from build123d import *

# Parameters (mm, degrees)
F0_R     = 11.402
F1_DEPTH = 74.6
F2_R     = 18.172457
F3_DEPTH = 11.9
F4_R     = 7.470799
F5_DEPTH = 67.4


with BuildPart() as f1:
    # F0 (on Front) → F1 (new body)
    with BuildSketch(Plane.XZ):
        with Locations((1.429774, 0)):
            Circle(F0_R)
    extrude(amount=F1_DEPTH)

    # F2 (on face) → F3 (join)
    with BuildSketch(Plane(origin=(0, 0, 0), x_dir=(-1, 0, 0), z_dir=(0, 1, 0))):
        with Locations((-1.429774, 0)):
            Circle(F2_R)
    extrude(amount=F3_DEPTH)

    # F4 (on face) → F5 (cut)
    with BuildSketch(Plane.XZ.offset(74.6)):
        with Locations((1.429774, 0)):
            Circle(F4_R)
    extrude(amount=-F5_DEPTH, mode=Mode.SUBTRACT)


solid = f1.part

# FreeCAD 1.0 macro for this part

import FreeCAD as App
import Part
import Sketcher

V = App.Vector

doc = App.newDocument("Part")
body = doc.addObject("PartDesign::Body", "Body")

# Sketch on XZ plane
sketch1 = doc.addObject("Sketcher::SketchObject", "Sketch")
body.addObject(sketch1)
sketch1.AttachmentSupport = (doc.XZ_Plane, [""])
sketch1.MapMode = "FlatFace"
sketch1.addGeometry(Part.Circle(V(1.429774, 0, 0), V(0, 0, 1), 11.402), False)
sketch1.addConstraint([
    Sketcher.Constraint("PointOnObject", 0, 3, -1),
    Sketcher.Constraint("Diameter", 0, 22.804),
    Sketcher.Constraint("DistanceX", -1, 1, 0, 3, 1.429774),
])
pad1 = doc.addObject("PartDesign::Pad", "Pad")
body.addObject(pad1)
pad1.Profile = sketch1
pad1.Length = 74.6

# Sketch on XZ plane
sketch2 = doc.addObject("Sketcher::SketchObject", "Sketch001")
body.addObject(sketch2)
sketch2.AttachmentSupport = (doc.XZ_Plane, [""])
sketch2.MapMode = "FlatFace"
sketch2.addGeometry(Part.Circle(V(1.429774, 0, 0), V(0, 0, 1), 18.172457), False)
sketch2.addConstraint([
    Sketcher.Constraint("PointOnObject", 0, 3, -1),
    Sketcher.Constraint("Diameter", 0, 36.344914),
    Sketcher.Constraint("DistanceX", -1, 1, 0, 3, 1.429774),
])
pad2 = doc.addObject("PartDesign::Pad", "Pad001")
body.addObject(pad2)
pad2.Profile = sketch2
pad2.Length = 11.9
pad2.Reversed = True

# Sketch on XZ plane
sketch3 = doc.addObject("Sketcher::SketchObject", "Sketch002")
body.addObject(sketch3)
sketch3.AttachmentSupport = (doc.XZ_Plane, [""])
sketch3.MapMode = "FlatFace"
sketch3.AttachmentOffset = App.Placement(V(0, 0, 74.6), App.Rotation())
sketch3.addGeometry(Part.Circle(V(1.429774, 0, 0), V(0, 0, 1), 7.470799), False)
sketch3.addConstraint([
    Sketcher.Constraint("PointOnObject", 0, 3, -1),
    Sketcher.Constraint("Diameter", 0, 14.941598),
    Sketcher.Constraint("DistanceX", -1, 1, 0, 3, 1.429774),
])
pocket1 = doc.addObject("PartDesign::Pocket", "Pocket")
body.addObject(pocket1)
pocket1.Profile = sketch3
pocket1.Length = 67.4

doc.recompute()
